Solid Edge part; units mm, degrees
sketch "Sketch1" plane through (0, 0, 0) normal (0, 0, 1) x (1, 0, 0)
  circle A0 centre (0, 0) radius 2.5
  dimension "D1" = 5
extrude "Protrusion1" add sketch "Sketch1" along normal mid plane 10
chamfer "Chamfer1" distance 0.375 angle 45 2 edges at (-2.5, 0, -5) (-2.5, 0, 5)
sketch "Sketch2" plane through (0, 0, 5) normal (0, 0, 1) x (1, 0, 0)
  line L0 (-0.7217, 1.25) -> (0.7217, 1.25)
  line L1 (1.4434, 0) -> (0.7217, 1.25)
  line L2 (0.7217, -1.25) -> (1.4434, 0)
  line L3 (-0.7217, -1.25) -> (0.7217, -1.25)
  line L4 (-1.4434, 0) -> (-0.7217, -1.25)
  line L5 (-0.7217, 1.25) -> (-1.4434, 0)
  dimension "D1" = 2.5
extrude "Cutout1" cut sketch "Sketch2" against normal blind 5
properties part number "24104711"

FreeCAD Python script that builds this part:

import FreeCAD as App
import Part
import Sketcher

V = App.Vector
Q = App.Units.Quantity


def edges_at(feature, points):
    """Names of the edges that pass closest to the given points."""
    edges = feature.Shape.Edges
    near = lambda p: min(range(len(edges)), key=lambda i: edges[i].distToShape(Part.Vertex(*p))[0])
    return sorted({f"Edge{near(p) + 1}" for p in points})


def add_polygon(sketch, points):
    """Adds a closed chain of lines whose ends are joined by coincident constraints."""
    first, n = sketch.GeometryCount, len(points)
    for a, b in zip(points, points[1:] + points[:1]):
        sketch.addGeometry(Part.LineSegment(App.Vector(*a, 0), App.Vector(*b, 0)), False)
    for i in range(n):
        sketch.addConstraint(Sketcher.Constraint("Coincident", first + i, 2, first + (i + 1) % n, 1))

doc = App.newDocument("Part")
body = doc.addObject("PartDesign::Body", "Body")

sketch1 = doc.addObject("Sketcher::SketchObject", "Sketch")
body.addObject(sketch1)
sketch1.AttachmentSupport = (doc.XY_Plane, [""])
sketch1.MapMode = "FlatFace"
sketch1.addGeometry(Part.Circle(V(0, 0, 0), V(0, 0, 1), 2.5), False)
sketch1.addConstraint([
    Sketcher.Constraint("Coincident", 0, 3, -1, 1),
    Sketcher.Constraint("Diameter", 0, 5.0),
])
pad1 = doc.addObject("PartDesign::Pad", "Pad")
body.addObject(pad1)
pad1.Profile = sketch1
pad1.Length = 10
pad1.Midplane = True
doc.recompute()

chamfer = doc.addObject("PartDesign::Chamfer", "Chamfer")
body.addObject(chamfer)
chamfer.Base = (pad1, edges_at(pad1, [(-2.5, 0, -5), (-2.5, 0, 5)]))
chamfer.Size = 0.375

sketch2 = doc.addObject("Sketcher::SketchObject", "Sketch001")
body.addObject(sketch2)
sketch2.AttachmentSupport = (doc.XY_Plane, [""])
sketch2.MapMode = "FlatFace"
sketch2.AttachmentOffset = App.Placement(V(0, 0, 5), App.Rotation())
add_polygon(sketch2, [(0.7, 1.2), (-0.7, 1.2), (-1.4, 0), (-0.7, -1.2), (0.7, -1.2), (1.4, 0)])
sketch2.addConstraint([
    Sketcher.Constraint("Horizontal", 0),
    Sketcher.Constraint("Horizontal", 3),
    Sketcher.Constraint("Symmetric", 0, 2, 3, 2, -1, 1),
    Sketcher.Constraint("Symmetric", 1, 2, 4, 2, -1, 1),
    Sketcher.Constraint("PointOnObject", 1, 2, -1),
    Sketcher.Constraint("Parallel", 2, 5),
    Sketcher.Constraint("Vertical", 0, 2, 2, 2),
    Sketcher.Constraint("Angle", 1, Q("-120.0004 deg")),
    Sketcher.Constraint("DistanceY", 2, 2, 0, 2, 2.5),
    Sketcher.Constraint("DistanceX", 0, 2, 0, 1, 1.4434),
])
pocket1 = doc.addObject("PartDesign::Pocket", "Pocket")
body.addObject(pocket1)
pocket1.Profile = sketch2
pocket1.Length = 5

doc.recompute()
